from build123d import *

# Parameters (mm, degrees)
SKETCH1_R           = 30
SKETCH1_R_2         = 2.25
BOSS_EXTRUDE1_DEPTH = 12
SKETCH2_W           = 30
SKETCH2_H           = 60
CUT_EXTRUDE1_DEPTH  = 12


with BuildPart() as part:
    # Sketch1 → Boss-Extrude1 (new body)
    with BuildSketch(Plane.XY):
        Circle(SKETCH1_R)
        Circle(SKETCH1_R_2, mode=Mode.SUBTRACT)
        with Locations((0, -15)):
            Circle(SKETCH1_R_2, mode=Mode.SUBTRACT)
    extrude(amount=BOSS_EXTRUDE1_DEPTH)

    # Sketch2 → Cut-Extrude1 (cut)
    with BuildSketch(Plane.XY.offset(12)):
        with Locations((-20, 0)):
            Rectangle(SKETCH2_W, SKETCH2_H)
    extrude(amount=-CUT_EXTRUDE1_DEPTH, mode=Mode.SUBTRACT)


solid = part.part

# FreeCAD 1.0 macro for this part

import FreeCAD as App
import Part
import Sketcher
Q = App.Units.Quantity


def add_polygon(sketch, points):
    """Adds a closed chain of lines whose ends are joined by coincident constraints."""
    first, n = sketch.GeometryCount, len(points)
    for a, b in zip(points, points[1:] + points[:1]):
        sketch.addGeometry(Part.LineSegment(App.Vector(*a, 0), App.Vector(*b, 0)), False)
    for i in range(n):
        sketch.addConstraint(Sketcher.Constraint("Coincident", first + i, 2, first + (i + 1) % n, 1))

doc = App.newDocument("Part")
body = doc.addObject("PartDesign::Body", "Body")

# Sketch on XY plane
sketch1 = body.newObject("Sketcher::SketchObject", "Sketch")
sketch1.AttachmentSupport = (doc.getObject("XY_Plane"), [""])
sketch1.MapMode = "FlatFace"
sketch1.addGeometry([
    Part.Circle(App.Vector(0, 0, 0), App.Vector(0, 0, 1), 30),
    Part.Circle(App.Vector(0, -15, 0), App.Vector(0, 0, 1), 2.2),
    Part.Circle(App.Vector(0, 0, 0), App.Vector(0, 0, 1), 2.2),
], False)
sketch1.addConstraint([
    Sketcher.Constraint("Coincident", 0, 3, -1, 1),
    Sketcher.Constraint("Coincident", 2, 3, -1, 1),
    Sketcher.Constraint("Equal", 1, 2),
    Sketcher.Constraint("PointOnObject", 1, 3, -2),
    Sketcher.Constraint("Diameter", 0, Q("60 mm")),
    Sketcher.Constraint("Diameter", 1, Q("4.5 mm")),
    Sketcher.Constraint("DistanceY", 1, 3, -1, 1, Q("15 mm")),
])
pad1 = body.newObject("PartDesign::Pad", "Pad")
pad1.Profile = sketch1
pad1.Length = 12

# Sketch on XY plane
sketch2 = body.newObject("Sketcher::SketchObject", "Sketch001")
sketch2.AttachmentSupport = (doc.getObject("XY_Plane"), [""])
sketch2.MapMode = "FlatFace"
sketch2.AttachmentOffset = App.Placement(App.Vector(0, 0, 12), App.Rotation())
add_polygon(sketch2, [(-35, 30), (-35, -30), (-5, -30), (-5, 30)])  # lines 0-3
sketch2.addConstraint([
    Sketcher.Constraint("Vertical", 0),
    Sketcher.Constraint("Horizontal", 1),
    Sketcher.Constraint("Vertical", 2),
    Sketcher.Constraint("Horizontal", 3),
    Sketcher.Constraint("DistanceX", 1, 1, 1, 2, Q("30 mm")),
    Sketcher.Constraint("DistanceY", 0, 2, 0, 1, Q("60 mm")),
    Sketcher.Constraint("DistanceX", 0, 2, -1, 1, Q("35 mm")),
    Sketcher.Constraint("DistanceY", 0, 2, -1, 1, Q("30 mm")),
])
pocket1 = body.newObject("PartDesign::Pocket", "Pocket")
pocket1.Profile = sketch2
pocket1.Length = 12

doc.recompute()
